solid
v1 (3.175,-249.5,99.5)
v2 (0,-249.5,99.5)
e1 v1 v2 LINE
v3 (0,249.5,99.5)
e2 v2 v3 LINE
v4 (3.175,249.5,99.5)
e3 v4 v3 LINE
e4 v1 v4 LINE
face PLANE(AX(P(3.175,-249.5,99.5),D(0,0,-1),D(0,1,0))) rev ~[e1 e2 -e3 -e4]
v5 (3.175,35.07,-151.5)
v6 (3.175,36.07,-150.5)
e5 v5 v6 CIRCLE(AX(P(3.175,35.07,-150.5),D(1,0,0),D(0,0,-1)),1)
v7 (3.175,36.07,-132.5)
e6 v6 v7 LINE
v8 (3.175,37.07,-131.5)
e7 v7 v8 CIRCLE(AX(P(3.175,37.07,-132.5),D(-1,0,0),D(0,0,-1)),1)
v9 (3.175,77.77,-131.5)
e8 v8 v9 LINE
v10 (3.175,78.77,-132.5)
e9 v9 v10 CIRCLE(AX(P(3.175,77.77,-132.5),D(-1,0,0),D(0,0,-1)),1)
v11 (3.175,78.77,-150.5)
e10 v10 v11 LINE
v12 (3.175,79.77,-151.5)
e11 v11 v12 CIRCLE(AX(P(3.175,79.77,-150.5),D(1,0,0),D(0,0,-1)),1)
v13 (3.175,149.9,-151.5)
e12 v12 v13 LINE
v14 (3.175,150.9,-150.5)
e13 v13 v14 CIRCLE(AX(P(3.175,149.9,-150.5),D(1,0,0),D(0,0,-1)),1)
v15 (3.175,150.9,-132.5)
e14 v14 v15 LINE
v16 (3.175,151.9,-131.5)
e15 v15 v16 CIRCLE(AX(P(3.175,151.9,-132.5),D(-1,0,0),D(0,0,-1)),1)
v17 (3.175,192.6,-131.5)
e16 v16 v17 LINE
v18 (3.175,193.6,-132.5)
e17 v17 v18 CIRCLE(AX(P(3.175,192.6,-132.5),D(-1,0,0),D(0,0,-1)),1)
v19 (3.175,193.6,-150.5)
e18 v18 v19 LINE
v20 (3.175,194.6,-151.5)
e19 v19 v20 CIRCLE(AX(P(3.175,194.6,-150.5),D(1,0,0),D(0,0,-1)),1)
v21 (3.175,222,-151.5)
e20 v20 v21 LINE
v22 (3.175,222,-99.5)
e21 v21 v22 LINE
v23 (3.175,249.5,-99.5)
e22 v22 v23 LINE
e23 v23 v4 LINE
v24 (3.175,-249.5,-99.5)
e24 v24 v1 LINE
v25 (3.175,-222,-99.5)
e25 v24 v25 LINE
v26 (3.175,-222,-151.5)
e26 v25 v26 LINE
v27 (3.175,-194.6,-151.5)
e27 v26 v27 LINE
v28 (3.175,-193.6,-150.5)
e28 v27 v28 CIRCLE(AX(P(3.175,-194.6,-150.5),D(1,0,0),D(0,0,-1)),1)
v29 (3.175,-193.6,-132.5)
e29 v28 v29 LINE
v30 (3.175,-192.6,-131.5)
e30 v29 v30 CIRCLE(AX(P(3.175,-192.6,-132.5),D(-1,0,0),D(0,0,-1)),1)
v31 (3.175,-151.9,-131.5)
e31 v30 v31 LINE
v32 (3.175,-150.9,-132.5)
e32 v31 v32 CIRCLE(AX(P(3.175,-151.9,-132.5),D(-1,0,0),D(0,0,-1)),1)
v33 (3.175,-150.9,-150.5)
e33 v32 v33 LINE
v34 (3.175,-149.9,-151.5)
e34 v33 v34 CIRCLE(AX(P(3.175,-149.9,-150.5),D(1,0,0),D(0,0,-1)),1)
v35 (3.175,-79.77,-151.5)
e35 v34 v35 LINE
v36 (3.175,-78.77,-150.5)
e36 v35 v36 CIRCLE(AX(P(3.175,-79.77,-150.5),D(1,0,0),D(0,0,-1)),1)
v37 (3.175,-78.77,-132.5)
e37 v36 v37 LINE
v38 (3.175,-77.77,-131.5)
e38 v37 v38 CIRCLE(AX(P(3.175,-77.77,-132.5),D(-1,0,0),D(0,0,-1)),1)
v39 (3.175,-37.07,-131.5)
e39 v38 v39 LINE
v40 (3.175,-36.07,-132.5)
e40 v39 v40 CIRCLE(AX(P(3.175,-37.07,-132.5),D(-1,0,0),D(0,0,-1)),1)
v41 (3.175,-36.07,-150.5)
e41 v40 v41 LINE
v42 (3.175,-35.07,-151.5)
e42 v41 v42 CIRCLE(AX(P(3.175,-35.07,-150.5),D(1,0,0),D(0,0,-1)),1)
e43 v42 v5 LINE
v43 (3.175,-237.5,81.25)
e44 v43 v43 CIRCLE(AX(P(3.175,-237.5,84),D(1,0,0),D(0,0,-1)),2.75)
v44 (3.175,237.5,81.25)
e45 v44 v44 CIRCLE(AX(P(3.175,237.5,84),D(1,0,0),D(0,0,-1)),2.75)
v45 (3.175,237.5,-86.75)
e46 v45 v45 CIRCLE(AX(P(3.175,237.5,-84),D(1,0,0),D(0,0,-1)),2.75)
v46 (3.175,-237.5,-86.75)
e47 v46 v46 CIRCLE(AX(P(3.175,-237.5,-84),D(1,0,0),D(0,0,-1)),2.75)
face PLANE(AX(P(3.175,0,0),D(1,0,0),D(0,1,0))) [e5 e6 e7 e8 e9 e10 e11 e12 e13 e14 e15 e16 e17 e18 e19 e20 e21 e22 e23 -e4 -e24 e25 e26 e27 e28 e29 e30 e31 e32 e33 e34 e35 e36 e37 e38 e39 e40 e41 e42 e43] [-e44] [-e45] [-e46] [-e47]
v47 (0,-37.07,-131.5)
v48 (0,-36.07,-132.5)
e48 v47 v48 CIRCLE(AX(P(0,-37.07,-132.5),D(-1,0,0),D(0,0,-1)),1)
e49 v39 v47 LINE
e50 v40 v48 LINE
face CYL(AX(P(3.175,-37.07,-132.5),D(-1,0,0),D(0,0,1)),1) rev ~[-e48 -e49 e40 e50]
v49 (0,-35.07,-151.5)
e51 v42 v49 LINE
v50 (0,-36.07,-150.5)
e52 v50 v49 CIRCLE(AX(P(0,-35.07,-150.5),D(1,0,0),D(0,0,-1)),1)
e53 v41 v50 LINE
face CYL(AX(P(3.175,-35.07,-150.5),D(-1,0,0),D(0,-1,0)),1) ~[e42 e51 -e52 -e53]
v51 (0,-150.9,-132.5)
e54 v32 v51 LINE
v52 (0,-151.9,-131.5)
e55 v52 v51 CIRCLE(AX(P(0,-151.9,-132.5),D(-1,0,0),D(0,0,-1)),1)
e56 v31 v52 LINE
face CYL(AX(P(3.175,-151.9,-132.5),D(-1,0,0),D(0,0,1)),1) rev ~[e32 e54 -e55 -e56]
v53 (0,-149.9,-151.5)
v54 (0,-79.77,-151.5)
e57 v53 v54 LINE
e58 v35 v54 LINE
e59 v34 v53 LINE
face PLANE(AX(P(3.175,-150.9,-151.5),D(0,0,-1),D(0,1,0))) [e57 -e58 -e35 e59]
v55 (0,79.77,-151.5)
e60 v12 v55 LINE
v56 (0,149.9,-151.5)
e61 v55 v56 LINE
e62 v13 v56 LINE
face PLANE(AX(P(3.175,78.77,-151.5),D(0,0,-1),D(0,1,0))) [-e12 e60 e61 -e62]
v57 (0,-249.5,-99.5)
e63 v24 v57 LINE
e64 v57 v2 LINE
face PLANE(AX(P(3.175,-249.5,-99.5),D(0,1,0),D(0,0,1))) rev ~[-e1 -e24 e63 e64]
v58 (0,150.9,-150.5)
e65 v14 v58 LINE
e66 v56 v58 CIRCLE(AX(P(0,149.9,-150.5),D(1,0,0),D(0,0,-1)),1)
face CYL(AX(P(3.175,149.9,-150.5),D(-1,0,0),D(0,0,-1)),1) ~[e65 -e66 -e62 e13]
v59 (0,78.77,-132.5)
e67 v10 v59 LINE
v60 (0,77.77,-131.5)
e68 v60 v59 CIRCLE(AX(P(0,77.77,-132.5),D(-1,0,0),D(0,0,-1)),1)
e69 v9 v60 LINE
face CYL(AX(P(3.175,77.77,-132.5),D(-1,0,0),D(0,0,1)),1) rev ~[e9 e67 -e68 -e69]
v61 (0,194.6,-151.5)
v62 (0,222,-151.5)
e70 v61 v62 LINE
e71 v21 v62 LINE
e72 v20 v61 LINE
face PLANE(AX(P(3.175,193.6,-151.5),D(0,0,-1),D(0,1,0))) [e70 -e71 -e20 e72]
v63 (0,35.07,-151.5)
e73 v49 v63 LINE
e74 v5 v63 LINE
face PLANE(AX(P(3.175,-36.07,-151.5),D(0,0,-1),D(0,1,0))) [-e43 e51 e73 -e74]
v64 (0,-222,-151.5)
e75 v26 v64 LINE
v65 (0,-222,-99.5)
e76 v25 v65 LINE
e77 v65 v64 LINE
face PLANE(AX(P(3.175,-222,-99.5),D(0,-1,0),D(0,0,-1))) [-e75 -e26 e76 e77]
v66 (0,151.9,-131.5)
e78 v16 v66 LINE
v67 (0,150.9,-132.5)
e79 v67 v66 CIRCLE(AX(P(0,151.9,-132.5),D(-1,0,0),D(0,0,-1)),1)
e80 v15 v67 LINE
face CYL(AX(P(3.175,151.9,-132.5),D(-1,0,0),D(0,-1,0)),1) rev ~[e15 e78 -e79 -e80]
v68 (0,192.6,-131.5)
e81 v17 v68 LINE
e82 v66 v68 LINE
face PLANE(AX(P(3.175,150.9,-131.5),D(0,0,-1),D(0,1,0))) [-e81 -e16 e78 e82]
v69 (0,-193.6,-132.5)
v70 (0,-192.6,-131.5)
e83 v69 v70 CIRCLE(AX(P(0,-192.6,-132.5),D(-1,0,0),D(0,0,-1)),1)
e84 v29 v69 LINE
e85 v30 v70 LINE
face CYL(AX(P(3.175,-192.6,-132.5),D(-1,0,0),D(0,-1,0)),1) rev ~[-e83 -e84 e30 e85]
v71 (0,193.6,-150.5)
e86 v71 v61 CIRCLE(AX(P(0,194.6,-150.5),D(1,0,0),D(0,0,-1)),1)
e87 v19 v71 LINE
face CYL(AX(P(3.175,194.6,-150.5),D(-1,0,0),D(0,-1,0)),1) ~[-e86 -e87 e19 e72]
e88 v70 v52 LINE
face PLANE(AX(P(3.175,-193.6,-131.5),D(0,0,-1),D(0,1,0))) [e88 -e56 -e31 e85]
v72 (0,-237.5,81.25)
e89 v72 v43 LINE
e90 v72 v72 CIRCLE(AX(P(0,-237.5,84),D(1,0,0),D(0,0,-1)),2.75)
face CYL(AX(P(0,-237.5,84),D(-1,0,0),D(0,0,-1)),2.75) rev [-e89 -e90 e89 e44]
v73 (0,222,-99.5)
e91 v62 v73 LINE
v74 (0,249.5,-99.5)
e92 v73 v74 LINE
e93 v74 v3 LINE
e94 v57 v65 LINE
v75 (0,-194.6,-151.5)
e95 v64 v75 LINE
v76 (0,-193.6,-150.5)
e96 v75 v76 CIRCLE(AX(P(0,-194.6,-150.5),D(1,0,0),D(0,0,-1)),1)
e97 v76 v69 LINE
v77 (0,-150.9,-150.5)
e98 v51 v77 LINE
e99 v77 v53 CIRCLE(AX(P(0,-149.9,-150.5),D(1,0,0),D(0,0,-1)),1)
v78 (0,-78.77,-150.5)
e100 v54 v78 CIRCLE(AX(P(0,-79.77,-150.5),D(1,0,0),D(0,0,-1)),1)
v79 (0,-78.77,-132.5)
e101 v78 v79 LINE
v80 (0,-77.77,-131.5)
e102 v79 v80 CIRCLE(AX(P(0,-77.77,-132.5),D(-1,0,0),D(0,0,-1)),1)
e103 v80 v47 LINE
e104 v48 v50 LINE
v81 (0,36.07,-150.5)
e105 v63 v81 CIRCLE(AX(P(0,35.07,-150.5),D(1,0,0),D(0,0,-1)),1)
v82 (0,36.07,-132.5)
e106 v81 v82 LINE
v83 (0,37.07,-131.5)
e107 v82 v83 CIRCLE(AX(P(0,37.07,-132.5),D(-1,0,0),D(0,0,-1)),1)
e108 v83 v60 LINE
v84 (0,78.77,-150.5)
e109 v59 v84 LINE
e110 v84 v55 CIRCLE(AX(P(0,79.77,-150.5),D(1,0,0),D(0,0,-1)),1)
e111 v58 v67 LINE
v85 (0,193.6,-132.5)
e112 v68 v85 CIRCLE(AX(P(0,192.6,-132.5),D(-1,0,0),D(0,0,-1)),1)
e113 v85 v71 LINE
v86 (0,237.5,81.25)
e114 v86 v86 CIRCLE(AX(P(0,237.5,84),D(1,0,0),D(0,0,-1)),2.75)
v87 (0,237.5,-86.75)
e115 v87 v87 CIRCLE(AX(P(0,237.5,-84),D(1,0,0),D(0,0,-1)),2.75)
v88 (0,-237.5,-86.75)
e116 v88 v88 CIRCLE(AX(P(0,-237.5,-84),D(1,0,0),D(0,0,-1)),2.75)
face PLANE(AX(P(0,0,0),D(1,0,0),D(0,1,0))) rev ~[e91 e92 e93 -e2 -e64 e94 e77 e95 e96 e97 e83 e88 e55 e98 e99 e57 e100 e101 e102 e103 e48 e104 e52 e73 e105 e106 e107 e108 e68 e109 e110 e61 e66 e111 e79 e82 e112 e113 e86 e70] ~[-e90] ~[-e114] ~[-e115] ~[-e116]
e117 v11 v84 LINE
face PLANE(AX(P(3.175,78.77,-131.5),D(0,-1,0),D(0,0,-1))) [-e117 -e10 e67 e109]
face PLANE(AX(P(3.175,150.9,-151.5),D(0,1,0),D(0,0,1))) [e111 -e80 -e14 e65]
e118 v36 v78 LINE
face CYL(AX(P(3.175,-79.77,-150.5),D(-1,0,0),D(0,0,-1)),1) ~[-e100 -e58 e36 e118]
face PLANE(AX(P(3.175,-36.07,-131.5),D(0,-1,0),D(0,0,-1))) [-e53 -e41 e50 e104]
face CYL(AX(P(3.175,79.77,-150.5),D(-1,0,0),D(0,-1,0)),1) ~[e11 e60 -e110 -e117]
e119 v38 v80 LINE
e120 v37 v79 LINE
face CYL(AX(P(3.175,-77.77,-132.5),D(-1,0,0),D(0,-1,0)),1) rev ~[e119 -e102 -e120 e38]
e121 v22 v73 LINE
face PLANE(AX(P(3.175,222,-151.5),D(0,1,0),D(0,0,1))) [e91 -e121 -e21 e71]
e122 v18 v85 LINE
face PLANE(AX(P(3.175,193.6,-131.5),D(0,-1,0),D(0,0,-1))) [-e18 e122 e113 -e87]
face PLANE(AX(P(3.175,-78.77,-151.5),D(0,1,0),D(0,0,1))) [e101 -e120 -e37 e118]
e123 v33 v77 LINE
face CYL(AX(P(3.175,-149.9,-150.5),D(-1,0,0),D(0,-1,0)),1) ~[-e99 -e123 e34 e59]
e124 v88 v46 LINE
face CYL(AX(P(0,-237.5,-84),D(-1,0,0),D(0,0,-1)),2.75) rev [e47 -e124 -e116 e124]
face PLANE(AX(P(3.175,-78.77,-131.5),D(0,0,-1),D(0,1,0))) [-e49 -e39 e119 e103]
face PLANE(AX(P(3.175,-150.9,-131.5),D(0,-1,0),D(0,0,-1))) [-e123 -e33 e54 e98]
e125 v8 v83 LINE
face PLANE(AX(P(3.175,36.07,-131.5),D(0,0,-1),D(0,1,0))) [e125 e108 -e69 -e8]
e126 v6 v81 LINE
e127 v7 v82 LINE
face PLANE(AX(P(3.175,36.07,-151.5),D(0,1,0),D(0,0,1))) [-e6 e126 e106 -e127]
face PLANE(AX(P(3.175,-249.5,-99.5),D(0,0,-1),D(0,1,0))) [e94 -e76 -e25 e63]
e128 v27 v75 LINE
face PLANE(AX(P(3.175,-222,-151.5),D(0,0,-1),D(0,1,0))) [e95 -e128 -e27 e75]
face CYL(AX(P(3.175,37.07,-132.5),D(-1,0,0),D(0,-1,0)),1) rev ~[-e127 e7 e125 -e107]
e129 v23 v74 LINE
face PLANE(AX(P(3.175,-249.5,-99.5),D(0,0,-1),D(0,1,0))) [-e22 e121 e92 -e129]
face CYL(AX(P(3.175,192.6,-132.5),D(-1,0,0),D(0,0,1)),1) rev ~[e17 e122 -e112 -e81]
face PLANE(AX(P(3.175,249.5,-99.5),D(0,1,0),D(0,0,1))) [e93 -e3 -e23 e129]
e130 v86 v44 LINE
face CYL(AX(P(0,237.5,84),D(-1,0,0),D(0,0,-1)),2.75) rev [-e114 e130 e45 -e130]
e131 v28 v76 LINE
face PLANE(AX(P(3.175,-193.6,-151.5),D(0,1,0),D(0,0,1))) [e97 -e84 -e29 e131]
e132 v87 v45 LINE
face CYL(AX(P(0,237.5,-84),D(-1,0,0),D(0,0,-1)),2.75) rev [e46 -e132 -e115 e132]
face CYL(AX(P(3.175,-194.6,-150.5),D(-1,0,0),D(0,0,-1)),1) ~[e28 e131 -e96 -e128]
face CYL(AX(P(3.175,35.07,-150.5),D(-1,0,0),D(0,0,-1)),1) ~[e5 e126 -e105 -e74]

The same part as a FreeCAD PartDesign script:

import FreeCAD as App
import Part
import Sketcher

V = App.Vector
Q = App.Units.Quantity


def edges_at(feature, points):
    """Names of the edges that pass closest to the given points."""
    edges = feature.Shape.Edges
    near = lambda p: min(range(len(edges)), key=lambda i: edges[i].distToShape(Part.Vertex(*p))[0])
    return sorted({f"Edge{near(p) + 1}" for p in points})


def add_polygon(sketch, points):
    """Adds a closed chain of lines whose ends are joined by coincident constraints."""
    first, n = sketch.GeometryCount, len(points)
    for a, b in zip(points, points[1:] + points[:1]):
        sketch.addGeometry(Part.LineSegment(App.Vector(*a, 0), App.Vector(*b, 0)), False)
    for i in range(n):
        sketch.addConstraint(Sketcher.Constraint("Coincident", first + i, 2, first + (i + 1) % n, 1))

doc = App.newDocument("Part")
body = doc.addObject("PartDesign::Body", "Body")

sketch1 = body.newObject("Sketcher::SketchObject", "Sketch")
sketch1.AttachmentSupport = (doc.getObject("YZ_Plane"), [""])
sketch1.MapMode = "FlatFace"
add_polygon(sketch1, [(-250, 100), (-250, -100), (250, -100), (250, 100)])
sketch1.addGeometry(Part.Circle(V(-237.5, -84, 0), V(0, 0, 1), 2.8), False)
sketch1.addGeometry(Part.Circle(V(237.5, -84, 0), V(0, 0, 1), 2.8), False)
sketch1.addGeometry(Part.Circle(V(-237.5, 84, 0), V(0, 0, 1), 2.8), False)
sketch1.addGeometry(Part.Circle(V(237.5, 84, 0), V(0, 0, 1), 2.8), False)
sketch1.addConstraint(Sketcher.Constraint("Vertical", 0))
sketch1.addConstraint(Sketcher.Constraint("Horizontal", 1))
sketch1.addConstraint(Sketcher.Constraint("Vertical", 2))
sketch1.addConstraint(Sketcher.Constraint("Horizontal", 3))
sketch1.addConstraint(Sketcher.Constraint("Equal", 4, 5))
sketch1.addConstraint(Sketcher.Constraint("Equal", 5, 6))
sketch1.addConstraint(Sketcher.Constraint("Equal", 6, 7))
sketch1.addConstraint(Sketcher.Constraint("Symmetric", 5, 3, 6, 3, -1, 1))
sketch1.addConstraint(Sketcher.Constraint("Symmetric", 4, 3, 7, 3, -1, 1))
sketch1.addConstraint(Sketcher.Constraint("Symmetric", 0, 2, 2, 2, -1, 1))
sketch1.addConstraint(Sketcher.Constraint("Symmetric", 4, 3, 5, 3, -2))
sketch1.addConstraint(Sketcher.Constraint("Diameter", 4, Q("5.5 mm")))
sketch1.addConstraint(Sketcher.Constraint("DistanceX", 1, 1, 1, 2, Q("500 mm")))
sketch1.addConstraint(Sketcher.Constraint("DistanceY", 0, 2, 0, 1, Q("200 mm")))
sketch1.addConstraint(Sketcher.Constraint("DistanceY", 4, 3, -1, 1, Q("84 mm")))
sketch1.addConstraint(Sketcher.Constraint("DistanceX", 4, 3, 5, 3, Q("475 mm")))
pad1 = body.newObject("PartDesign::Pad", "Pad")
pad1.Profile = sketch1
pad1.Length = 3.175

sketch2 = body.newObject("Sketcher::SketchObject", "Sketch001")
sketch2.AttachmentSupport = (doc.getObject("YZ_Plane"), [""])
sketch2.MapMode = "FlatFace"
sketch2.AttachmentOffset = App.Placement(V(0, 0, 3.175), App.Rotation())
add_polygon(sketch2, [(-250, 100), (-250, -100), (250, -100), (250, 100)])
add_polygon(sketch2, [(250, -100), (-250, -100), (-250, 100), (250, 100)])
sketch2.addConstraint(Sketcher.Constraint("Vertical", 0))
sketch2.addConstraint(Sketcher.Constraint("Horizontal", 1))
sketch2.addConstraint(Sketcher.Constraint("Vertical", 2))
sketch2.addConstraint(Sketcher.Constraint("Horizontal", 3))
sketch2.addConstraint(Sketcher.Constraint("Horizontal", 4))
sketch2.addConstraint(Sketcher.Constraint("Vertical", 5))
sketch2.addConstraint(Sketcher.Constraint("Horizontal", 6))
sketch2.addConstraint(Sketcher.Constraint("Vertical", 7))
sketch2.addConstraint(Sketcher.Constraint("Symmetric", 0, 2, 2, 2, -1, 1))
sketch2.addConstraint(Sketcher.Constraint("Symmetric", 4, 2, 6, 2, -1, 1))
sketch2.addConstraint(Sketcher.Constraint("DistanceX", 1, 1, 1, 2, Q("500 mm")))
sketch2.addConstraint(Sketcher.Constraint("DistanceX", 4, 2, 4, 1, Q("499 mm")))
sketch2.addConstraint(Sketcher.Constraint("DistanceY", 0, 2, 0, 1, Q("200 mm")))
sketch2.addConstraint(Sketcher.Constraint("DistanceY", 5, 1, 5, 2, Q("199 mm")))
pocket1 = body.newObject("PartDesign::Pocket", "Pocket")
pocket1.Profile = sketch2
pocket1.Length = 3.175

sketch3 = body.newObject("Sketcher::SketchObject", "Sketch002")
sketch3.AttachmentSupport = (doc.getObject("YZ_Plane"), [""])
sketch3.MapMode = "FlatFace"
sketch3.AttachmentOffset = App.Placement(V(0, 0, 3.175), App.Rotation())
add_polygon(sketch3, [(222, -100), (-222, -100), (-222, -152), (-194, -152), (-194, -132), (-151, -132), (-151, -152), (-79, -152), (-79, -132), (-36, -132), (-36, -152), (36, -152), (36, -132), (79, -132), (79, -152), (151, -152), (151, -132), (194, -132), (194, -152), (222, -152)])
sketch3.addConstraint(Sketcher.Constraint("Horizontal", 0))
sketch3.addConstraint(Sketcher.Constraint("Vertical", 1))
sketch3.addConstraint(Sketcher.Constraint("Horizontal", 2))
sketch3.addConstraint(Sketcher.Constraint("Vertical", 3))
sketch3.addConstraint(Sketcher.Constraint("Horizontal", 4))
sketch3.addConstraint(Sketcher.Constraint("Vertical", 5))
sketch3.addConstraint(Sketcher.Constraint("Horizontal", 6))
sketch3.addConstraint(Sketcher.Constraint("Vertical", 7))
sketch3.addConstraint(Sketcher.Constraint("Horizontal", 8))
sketch3.addConstraint(Sketcher.Constraint("Vertical", 9))
sketch3.addConstraint(Sketcher.Constraint("Horizontal", 10))
sketch3.addConstraint(Sketcher.Constraint("Vertical", 11))
sketch3.addConstraint(Sketcher.Constraint("Horizontal", 12))
sketch3.addConstraint(Sketcher.Constraint("Vertical", 13))
sketch3.addConstraint(Sketcher.Constraint("Horizontal", 14))
sketch3.addConstraint(Sketcher.Constraint("Vertical", 15))
sketch3.addConstraint(Sketcher.Constraint("Horizontal", 16))
sketch3.addConstraint(Sketcher.Constraint("Vertical", 17))
sketch3.addConstraint(Sketcher.Constraint("Horizontal", 18))
sketch3.addConstraint(Sketcher.Constraint("Vertical", 19))
sketch3.addConstraint(Sketcher.Constraint("Symmetric", 8, 2, 11, 2, -2))
sketch3.addConstraint(Sketcher.Constraint("Symmetric", 6, 2, 13, 2, -2))
sketch3.addConstraint(Sketcher.Constraint("Symmetric", 4, 2, 15, 2, -2))
sketch3.addConstraint(Sketcher.Constraint("Symmetric", 2, 2, 17, 2, -2))
sketch3.addConstraint(Sketcher.Constraint("Horizontal", 2, 2, 5, 2))
sketch3.addConstraint(Sketcher.Constraint("Horizontal", 4, 2, 7, 2))
sketch3.addConstraint(Sketcher.Constraint("Horizontal", 6, 2, 9, 2))
sketch3.addConstraint(Sketcher.Constraint("Equal", 4, 8))
sketch3.addConstraint(Sketcher.Constraint("Equal", 2, 18))
sketch3.addConstraint(Sketcher.Constraint("DistanceX", 0, 2, 0, 1, Q("444 mm")))
sketch3.addConstraint(Sketcher.Constraint("DistanceY", 1, 2, 1, 1, Q("52 mm")))
sketch3.addConstraint(Sketcher.Constraint("DistanceY", 3, 1, 3, 2, Q("20 mm")))
sketch3.addConstraint(Sketcher.Constraint("DistanceX", 2, 1, 2, 2, Q("28.4 mm")))
sketch3.addConstraint(Sketcher.Constraint("DistanceX", 4, 1, 4, 2, Q("42.7 mm")))
sketch3.addConstraint(Sketcher.Constraint("DistanceX", 6, 1, 6, 2, Q("72.13 mm")))
sketch3.addConstraint(Sketcher.Constraint("DistanceY", 0, 2, -1, 1, Q("99.5 mm")))
pad2 = body.newObject("PartDesign::Pad", "Pad001")
pad2.Profile = sketch3
pad2.Length = 3.175
pad2.Reversed = True
doc.recompute()

fillet = body.newObject("PartDesign::Fillet", "Fillet")
fillet.Base = (pad2, edges_at(pad2, [
    (1.587, 193.6, -151.5),
    (1.587, 193.6, -131.5),
    (1.587, 150.9, -131.5),
    (1.587, 150.9, -151.5),
    (1.587, 78.77, -151.5),
    (1.587, 78.77, -131.5),
    (1.587, 36.07, -131.5),
    (1.587, 36.07, -151.5),
    (1.587, -36.07, -151.5),
    (1.587, -36.07, -131.5),
    (1.587, -78.77, -131.5),
    (1.587, -78.77, -151.5),
    (1.587, -150.9, -151.5),
    (1.587, -150.9, -131.5),
    (1.587, -193.6, -131.5),
    (1.587, -193.6, -151.5),
]))
fillet.Radius = 1

doc.recompute()
